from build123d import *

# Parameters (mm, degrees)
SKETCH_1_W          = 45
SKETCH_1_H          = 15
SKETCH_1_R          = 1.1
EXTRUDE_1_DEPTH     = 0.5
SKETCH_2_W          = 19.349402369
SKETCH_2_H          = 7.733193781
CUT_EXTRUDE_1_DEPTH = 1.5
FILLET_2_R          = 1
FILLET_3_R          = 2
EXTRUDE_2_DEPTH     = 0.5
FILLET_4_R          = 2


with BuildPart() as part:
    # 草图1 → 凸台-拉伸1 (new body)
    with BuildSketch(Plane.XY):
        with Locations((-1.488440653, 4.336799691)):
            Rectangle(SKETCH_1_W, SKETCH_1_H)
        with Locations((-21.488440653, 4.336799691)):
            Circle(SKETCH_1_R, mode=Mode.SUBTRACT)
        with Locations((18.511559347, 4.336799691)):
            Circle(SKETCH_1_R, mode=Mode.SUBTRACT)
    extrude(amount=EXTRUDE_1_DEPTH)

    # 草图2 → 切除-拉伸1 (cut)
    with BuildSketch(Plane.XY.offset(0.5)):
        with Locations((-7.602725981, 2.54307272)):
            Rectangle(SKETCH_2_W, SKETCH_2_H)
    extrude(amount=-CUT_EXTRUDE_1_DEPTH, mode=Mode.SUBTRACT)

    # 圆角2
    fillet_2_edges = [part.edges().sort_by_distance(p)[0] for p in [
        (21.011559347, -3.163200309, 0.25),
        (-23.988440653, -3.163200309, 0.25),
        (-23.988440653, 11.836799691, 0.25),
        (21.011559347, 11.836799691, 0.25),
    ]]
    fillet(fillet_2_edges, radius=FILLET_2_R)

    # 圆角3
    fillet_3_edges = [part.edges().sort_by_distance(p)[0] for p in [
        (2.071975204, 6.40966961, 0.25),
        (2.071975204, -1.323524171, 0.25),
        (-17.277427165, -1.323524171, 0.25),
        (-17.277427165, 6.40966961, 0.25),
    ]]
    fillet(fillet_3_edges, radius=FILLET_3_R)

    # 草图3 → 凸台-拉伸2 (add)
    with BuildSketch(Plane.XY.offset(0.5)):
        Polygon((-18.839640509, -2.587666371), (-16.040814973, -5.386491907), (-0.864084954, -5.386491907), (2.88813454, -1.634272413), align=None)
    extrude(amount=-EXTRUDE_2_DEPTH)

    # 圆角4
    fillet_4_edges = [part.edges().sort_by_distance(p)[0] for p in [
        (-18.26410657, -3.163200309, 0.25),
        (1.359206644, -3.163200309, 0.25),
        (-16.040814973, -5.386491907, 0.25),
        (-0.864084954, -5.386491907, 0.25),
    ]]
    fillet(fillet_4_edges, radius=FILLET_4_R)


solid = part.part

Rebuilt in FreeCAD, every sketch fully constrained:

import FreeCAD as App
import Part
import Sketcher
from FreeCAD import Vector
Q = App.Units.Quantity


def edges_at(feature, points):
    """Names of the edges that pass closest to the given points."""
    edges = feature.Shape.Edges
    near = lambda p: min(range(len(edges)), key=lambda i: edges[i].distToShape(Part.Vertex(*p))[0])
    return sorted({f"Edge{near(p) + 1}" for p in points})


def add_polygon(sketch, points):
    """Adds a closed chain of lines whose ends are joined by coincident constraints."""
    first, n = sketch.GeometryCount, len(points)
    for a, b in zip(points, points[1:] + points[:1]):
        sketch.addGeometry(Part.LineSegment(App.Vector(*a, 0), App.Vector(*b, 0)), False)
    for i in range(n):
        sketch.addConstraint(Sketcher.Constraint("Coincident", first + i, 2, first + (i + 1) % n, 1))

doc = App.newDocument("Part")
body = doc.addObject("PartDesign::Body", "Body")

# Sketch on XY plane
sketch1 = body.newObject("Sketcher::SketchObject", "Sketch")
sketch1.AttachmentSupport = (doc.getObject("XY_Plane"), [""])
sketch1.MapMode = "FlatFace"
add_polygon(sketch1, [(-23.988441, 11.8368), (-23.988441, -3.1632), (21.011559, -3.1632), (21.011559, 11.8368)])  # lines 0-3
sketch1.addGeometry(Part.Circle(Vector(-21.488441, 4.3368, 0), Vector(0, 0, 1), 1.1), False)  # 4
sketch1.addGeometry(Part.Circle(Vector(18.511559, 4.3368, 0), Vector(0, 0, 1), 1.1), False)  # 5
sketch1.addConstraint([
    Sketcher.Constraint("Vertical", 0),
    Sketcher.Constraint("Horizontal", 1),
    Sketcher.Constraint("Vertical", 2),
    Sketcher.Constraint("Horizontal", 3),
    Sketcher.Constraint("Equal", 4, 5),
    Sketcher.Constraint("Horizontal", 4, 3, 5, 3),
    Sketcher.Constraint("Diameter", 4, Q("2.2 mm")),
    Sketcher.Constraint("DistanceX", 1, 1, 1, 2, Q("45 mm")),
    Sketcher.Constraint("DistanceY", 0, 2, 0, 1, Q("15 mm")),
    Sketcher.Constraint("DistanceX", 4, 3, 5, 3, Q("40 mm")),
    Sketcher.Constraint("DistanceX", 0, 2, 4, 3, Q("2.5 mm")),
    Sketcher.Constraint("DistanceY", 0, 2, 4, 3, Q("7.5 mm")),
    Sketcher.Constraint("DistanceY", -1, 1, 4, 3, Q("4.3368 mm")),
    Sketcher.Constraint("DistanceX", 4, 3, -1, 1, Q("21.488441 mm")),
])
pad1 = body.newObject("PartDesign::Pad", "Pad")
pad1.Profile = sketch1
pad1.Length = 0.5

# Sketch on XY plane
sketch2 = body.newObject("Sketcher::SketchObject", "Sketch001")
sketch2.AttachmentSupport = (doc.getObject("XY_Plane"), [""])
sketch2.MapMode = "FlatFace"
sketch2.AttachmentOffset = App.Placement(Vector(0, 0, 0.5), App.Rotation())
add_polygon(sketch2, [(-17.277427, 6.40967), (-17.277427, -1.323524), (2.071975, -1.323524), (2.071975, 6.40967)])  # lines 0-3
sketch2.addConstraint([
    Sketcher.Constraint("Vertical", 0),
    Sketcher.Constraint("Horizontal", 1),
    Sketcher.Constraint("Vertical", 2),
    Sketcher.Constraint("Horizontal", 3),
    Sketcher.Constraint("DistanceX", 1, 1, 1, 2, Q("19.349402 mm")),
    Sketcher.Constraint("DistanceY", 0, 2, 0, 1, Q("7.733194 mm")),
    Sketcher.Constraint("DistanceY", -1, 1, 2, 2, Q("6.40967 mm")),
    Sketcher.Constraint("DistanceX", 0, 2, -1, 1, Q("17.277427 mm")),
])
pocket1 = body.newObject("PartDesign::Pocket", "Pocket")
pocket1.Profile = sketch2
pocket1.Length = 1.5
doc.recompute()

fillet = body.newObject("PartDesign::Fillet", "Fillet")
fillet.Base = (pocket1, edges_at(pocket1, [
    (21.012, -3.163, 0.25),
    (-23.988, -3.163, 0.25),
    (-23.988, 11.837, 0.25),
    (21.012, 11.837, 0.25),
]))
fillet.Radius = 1
doc.recompute()

fillet2 = body.newObject("PartDesign::Fillet", "Fillet001")
fillet2.Base = (fillet, edges_at(fillet, [
    (2.072, 6.41, 0.25),
    (2.072, -1.324, 0.25),
    (-17.277, -1.324, 0.25),
    (-17.277, 6.41, 0.25),
]))
fillet2.Radius = 2

# Sketch on XY plane
sketch3 = body.newObject("Sketcher::SketchObject", "Sketch002")
sketch3.AttachmentSupport = (doc.getObject("XY_Plane"), [""])
sketch3.MapMode = "FlatFace"
sketch3.AttachmentOffset = App.Placement(Vector(0, 0, 0.5), App.Rotation())
add_polygon(sketch3, [(-18.839641, -2.587666), (-16.040815, -5.386492), (-0.864085, -5.386492), (2.888135, -1.634272)])  # lines 0-3
sketch3.addConstraint([
    Sketcher.Constraint("Horizontal", 1),
    Sketcher.Constraint("Perpendicular", 0, 2),
    Sketcher.Constraint("Angle", 0, Q("-45 deg")),
    Sketcher.Constraint("DistanceX", 1, 1, 1, 2, Q("15.17673 mm")),
    Sketcher.Constraint("Distance", 2, Q("5.30644 mm")),
    Sketcher.Constraint("Distance", 3, Q("21.748682 mm")),
    Sketcher.Constraint("DistanceY", 0, 2, -1, 1, Q("5.386492 mm")),
    Sketcher.Constraint("DistanceX", 3, 2, -1, 1, Q("18.839641 mm")),
])
pad2 = body.newObject("PartDesign::Pad", "Pad001")
pad2.Profile = sketch3
pad2.Length = 0.5
pad2.Reversed = True
doc.recompute()

fillet3 = body.newObject("PartDesign::Fillet", "Fillet002")
fillet3.Base = (pad2, edges_at(pad2, [
    (-18.264, -3.163, 0.25),
    (1.359, -3.163, 0.25),
    (-16.041, -5.386, 0.25),
    (-0.864, -5.386, 0.25),
]))
fillet3.Radius = 2

doc.recompute()
